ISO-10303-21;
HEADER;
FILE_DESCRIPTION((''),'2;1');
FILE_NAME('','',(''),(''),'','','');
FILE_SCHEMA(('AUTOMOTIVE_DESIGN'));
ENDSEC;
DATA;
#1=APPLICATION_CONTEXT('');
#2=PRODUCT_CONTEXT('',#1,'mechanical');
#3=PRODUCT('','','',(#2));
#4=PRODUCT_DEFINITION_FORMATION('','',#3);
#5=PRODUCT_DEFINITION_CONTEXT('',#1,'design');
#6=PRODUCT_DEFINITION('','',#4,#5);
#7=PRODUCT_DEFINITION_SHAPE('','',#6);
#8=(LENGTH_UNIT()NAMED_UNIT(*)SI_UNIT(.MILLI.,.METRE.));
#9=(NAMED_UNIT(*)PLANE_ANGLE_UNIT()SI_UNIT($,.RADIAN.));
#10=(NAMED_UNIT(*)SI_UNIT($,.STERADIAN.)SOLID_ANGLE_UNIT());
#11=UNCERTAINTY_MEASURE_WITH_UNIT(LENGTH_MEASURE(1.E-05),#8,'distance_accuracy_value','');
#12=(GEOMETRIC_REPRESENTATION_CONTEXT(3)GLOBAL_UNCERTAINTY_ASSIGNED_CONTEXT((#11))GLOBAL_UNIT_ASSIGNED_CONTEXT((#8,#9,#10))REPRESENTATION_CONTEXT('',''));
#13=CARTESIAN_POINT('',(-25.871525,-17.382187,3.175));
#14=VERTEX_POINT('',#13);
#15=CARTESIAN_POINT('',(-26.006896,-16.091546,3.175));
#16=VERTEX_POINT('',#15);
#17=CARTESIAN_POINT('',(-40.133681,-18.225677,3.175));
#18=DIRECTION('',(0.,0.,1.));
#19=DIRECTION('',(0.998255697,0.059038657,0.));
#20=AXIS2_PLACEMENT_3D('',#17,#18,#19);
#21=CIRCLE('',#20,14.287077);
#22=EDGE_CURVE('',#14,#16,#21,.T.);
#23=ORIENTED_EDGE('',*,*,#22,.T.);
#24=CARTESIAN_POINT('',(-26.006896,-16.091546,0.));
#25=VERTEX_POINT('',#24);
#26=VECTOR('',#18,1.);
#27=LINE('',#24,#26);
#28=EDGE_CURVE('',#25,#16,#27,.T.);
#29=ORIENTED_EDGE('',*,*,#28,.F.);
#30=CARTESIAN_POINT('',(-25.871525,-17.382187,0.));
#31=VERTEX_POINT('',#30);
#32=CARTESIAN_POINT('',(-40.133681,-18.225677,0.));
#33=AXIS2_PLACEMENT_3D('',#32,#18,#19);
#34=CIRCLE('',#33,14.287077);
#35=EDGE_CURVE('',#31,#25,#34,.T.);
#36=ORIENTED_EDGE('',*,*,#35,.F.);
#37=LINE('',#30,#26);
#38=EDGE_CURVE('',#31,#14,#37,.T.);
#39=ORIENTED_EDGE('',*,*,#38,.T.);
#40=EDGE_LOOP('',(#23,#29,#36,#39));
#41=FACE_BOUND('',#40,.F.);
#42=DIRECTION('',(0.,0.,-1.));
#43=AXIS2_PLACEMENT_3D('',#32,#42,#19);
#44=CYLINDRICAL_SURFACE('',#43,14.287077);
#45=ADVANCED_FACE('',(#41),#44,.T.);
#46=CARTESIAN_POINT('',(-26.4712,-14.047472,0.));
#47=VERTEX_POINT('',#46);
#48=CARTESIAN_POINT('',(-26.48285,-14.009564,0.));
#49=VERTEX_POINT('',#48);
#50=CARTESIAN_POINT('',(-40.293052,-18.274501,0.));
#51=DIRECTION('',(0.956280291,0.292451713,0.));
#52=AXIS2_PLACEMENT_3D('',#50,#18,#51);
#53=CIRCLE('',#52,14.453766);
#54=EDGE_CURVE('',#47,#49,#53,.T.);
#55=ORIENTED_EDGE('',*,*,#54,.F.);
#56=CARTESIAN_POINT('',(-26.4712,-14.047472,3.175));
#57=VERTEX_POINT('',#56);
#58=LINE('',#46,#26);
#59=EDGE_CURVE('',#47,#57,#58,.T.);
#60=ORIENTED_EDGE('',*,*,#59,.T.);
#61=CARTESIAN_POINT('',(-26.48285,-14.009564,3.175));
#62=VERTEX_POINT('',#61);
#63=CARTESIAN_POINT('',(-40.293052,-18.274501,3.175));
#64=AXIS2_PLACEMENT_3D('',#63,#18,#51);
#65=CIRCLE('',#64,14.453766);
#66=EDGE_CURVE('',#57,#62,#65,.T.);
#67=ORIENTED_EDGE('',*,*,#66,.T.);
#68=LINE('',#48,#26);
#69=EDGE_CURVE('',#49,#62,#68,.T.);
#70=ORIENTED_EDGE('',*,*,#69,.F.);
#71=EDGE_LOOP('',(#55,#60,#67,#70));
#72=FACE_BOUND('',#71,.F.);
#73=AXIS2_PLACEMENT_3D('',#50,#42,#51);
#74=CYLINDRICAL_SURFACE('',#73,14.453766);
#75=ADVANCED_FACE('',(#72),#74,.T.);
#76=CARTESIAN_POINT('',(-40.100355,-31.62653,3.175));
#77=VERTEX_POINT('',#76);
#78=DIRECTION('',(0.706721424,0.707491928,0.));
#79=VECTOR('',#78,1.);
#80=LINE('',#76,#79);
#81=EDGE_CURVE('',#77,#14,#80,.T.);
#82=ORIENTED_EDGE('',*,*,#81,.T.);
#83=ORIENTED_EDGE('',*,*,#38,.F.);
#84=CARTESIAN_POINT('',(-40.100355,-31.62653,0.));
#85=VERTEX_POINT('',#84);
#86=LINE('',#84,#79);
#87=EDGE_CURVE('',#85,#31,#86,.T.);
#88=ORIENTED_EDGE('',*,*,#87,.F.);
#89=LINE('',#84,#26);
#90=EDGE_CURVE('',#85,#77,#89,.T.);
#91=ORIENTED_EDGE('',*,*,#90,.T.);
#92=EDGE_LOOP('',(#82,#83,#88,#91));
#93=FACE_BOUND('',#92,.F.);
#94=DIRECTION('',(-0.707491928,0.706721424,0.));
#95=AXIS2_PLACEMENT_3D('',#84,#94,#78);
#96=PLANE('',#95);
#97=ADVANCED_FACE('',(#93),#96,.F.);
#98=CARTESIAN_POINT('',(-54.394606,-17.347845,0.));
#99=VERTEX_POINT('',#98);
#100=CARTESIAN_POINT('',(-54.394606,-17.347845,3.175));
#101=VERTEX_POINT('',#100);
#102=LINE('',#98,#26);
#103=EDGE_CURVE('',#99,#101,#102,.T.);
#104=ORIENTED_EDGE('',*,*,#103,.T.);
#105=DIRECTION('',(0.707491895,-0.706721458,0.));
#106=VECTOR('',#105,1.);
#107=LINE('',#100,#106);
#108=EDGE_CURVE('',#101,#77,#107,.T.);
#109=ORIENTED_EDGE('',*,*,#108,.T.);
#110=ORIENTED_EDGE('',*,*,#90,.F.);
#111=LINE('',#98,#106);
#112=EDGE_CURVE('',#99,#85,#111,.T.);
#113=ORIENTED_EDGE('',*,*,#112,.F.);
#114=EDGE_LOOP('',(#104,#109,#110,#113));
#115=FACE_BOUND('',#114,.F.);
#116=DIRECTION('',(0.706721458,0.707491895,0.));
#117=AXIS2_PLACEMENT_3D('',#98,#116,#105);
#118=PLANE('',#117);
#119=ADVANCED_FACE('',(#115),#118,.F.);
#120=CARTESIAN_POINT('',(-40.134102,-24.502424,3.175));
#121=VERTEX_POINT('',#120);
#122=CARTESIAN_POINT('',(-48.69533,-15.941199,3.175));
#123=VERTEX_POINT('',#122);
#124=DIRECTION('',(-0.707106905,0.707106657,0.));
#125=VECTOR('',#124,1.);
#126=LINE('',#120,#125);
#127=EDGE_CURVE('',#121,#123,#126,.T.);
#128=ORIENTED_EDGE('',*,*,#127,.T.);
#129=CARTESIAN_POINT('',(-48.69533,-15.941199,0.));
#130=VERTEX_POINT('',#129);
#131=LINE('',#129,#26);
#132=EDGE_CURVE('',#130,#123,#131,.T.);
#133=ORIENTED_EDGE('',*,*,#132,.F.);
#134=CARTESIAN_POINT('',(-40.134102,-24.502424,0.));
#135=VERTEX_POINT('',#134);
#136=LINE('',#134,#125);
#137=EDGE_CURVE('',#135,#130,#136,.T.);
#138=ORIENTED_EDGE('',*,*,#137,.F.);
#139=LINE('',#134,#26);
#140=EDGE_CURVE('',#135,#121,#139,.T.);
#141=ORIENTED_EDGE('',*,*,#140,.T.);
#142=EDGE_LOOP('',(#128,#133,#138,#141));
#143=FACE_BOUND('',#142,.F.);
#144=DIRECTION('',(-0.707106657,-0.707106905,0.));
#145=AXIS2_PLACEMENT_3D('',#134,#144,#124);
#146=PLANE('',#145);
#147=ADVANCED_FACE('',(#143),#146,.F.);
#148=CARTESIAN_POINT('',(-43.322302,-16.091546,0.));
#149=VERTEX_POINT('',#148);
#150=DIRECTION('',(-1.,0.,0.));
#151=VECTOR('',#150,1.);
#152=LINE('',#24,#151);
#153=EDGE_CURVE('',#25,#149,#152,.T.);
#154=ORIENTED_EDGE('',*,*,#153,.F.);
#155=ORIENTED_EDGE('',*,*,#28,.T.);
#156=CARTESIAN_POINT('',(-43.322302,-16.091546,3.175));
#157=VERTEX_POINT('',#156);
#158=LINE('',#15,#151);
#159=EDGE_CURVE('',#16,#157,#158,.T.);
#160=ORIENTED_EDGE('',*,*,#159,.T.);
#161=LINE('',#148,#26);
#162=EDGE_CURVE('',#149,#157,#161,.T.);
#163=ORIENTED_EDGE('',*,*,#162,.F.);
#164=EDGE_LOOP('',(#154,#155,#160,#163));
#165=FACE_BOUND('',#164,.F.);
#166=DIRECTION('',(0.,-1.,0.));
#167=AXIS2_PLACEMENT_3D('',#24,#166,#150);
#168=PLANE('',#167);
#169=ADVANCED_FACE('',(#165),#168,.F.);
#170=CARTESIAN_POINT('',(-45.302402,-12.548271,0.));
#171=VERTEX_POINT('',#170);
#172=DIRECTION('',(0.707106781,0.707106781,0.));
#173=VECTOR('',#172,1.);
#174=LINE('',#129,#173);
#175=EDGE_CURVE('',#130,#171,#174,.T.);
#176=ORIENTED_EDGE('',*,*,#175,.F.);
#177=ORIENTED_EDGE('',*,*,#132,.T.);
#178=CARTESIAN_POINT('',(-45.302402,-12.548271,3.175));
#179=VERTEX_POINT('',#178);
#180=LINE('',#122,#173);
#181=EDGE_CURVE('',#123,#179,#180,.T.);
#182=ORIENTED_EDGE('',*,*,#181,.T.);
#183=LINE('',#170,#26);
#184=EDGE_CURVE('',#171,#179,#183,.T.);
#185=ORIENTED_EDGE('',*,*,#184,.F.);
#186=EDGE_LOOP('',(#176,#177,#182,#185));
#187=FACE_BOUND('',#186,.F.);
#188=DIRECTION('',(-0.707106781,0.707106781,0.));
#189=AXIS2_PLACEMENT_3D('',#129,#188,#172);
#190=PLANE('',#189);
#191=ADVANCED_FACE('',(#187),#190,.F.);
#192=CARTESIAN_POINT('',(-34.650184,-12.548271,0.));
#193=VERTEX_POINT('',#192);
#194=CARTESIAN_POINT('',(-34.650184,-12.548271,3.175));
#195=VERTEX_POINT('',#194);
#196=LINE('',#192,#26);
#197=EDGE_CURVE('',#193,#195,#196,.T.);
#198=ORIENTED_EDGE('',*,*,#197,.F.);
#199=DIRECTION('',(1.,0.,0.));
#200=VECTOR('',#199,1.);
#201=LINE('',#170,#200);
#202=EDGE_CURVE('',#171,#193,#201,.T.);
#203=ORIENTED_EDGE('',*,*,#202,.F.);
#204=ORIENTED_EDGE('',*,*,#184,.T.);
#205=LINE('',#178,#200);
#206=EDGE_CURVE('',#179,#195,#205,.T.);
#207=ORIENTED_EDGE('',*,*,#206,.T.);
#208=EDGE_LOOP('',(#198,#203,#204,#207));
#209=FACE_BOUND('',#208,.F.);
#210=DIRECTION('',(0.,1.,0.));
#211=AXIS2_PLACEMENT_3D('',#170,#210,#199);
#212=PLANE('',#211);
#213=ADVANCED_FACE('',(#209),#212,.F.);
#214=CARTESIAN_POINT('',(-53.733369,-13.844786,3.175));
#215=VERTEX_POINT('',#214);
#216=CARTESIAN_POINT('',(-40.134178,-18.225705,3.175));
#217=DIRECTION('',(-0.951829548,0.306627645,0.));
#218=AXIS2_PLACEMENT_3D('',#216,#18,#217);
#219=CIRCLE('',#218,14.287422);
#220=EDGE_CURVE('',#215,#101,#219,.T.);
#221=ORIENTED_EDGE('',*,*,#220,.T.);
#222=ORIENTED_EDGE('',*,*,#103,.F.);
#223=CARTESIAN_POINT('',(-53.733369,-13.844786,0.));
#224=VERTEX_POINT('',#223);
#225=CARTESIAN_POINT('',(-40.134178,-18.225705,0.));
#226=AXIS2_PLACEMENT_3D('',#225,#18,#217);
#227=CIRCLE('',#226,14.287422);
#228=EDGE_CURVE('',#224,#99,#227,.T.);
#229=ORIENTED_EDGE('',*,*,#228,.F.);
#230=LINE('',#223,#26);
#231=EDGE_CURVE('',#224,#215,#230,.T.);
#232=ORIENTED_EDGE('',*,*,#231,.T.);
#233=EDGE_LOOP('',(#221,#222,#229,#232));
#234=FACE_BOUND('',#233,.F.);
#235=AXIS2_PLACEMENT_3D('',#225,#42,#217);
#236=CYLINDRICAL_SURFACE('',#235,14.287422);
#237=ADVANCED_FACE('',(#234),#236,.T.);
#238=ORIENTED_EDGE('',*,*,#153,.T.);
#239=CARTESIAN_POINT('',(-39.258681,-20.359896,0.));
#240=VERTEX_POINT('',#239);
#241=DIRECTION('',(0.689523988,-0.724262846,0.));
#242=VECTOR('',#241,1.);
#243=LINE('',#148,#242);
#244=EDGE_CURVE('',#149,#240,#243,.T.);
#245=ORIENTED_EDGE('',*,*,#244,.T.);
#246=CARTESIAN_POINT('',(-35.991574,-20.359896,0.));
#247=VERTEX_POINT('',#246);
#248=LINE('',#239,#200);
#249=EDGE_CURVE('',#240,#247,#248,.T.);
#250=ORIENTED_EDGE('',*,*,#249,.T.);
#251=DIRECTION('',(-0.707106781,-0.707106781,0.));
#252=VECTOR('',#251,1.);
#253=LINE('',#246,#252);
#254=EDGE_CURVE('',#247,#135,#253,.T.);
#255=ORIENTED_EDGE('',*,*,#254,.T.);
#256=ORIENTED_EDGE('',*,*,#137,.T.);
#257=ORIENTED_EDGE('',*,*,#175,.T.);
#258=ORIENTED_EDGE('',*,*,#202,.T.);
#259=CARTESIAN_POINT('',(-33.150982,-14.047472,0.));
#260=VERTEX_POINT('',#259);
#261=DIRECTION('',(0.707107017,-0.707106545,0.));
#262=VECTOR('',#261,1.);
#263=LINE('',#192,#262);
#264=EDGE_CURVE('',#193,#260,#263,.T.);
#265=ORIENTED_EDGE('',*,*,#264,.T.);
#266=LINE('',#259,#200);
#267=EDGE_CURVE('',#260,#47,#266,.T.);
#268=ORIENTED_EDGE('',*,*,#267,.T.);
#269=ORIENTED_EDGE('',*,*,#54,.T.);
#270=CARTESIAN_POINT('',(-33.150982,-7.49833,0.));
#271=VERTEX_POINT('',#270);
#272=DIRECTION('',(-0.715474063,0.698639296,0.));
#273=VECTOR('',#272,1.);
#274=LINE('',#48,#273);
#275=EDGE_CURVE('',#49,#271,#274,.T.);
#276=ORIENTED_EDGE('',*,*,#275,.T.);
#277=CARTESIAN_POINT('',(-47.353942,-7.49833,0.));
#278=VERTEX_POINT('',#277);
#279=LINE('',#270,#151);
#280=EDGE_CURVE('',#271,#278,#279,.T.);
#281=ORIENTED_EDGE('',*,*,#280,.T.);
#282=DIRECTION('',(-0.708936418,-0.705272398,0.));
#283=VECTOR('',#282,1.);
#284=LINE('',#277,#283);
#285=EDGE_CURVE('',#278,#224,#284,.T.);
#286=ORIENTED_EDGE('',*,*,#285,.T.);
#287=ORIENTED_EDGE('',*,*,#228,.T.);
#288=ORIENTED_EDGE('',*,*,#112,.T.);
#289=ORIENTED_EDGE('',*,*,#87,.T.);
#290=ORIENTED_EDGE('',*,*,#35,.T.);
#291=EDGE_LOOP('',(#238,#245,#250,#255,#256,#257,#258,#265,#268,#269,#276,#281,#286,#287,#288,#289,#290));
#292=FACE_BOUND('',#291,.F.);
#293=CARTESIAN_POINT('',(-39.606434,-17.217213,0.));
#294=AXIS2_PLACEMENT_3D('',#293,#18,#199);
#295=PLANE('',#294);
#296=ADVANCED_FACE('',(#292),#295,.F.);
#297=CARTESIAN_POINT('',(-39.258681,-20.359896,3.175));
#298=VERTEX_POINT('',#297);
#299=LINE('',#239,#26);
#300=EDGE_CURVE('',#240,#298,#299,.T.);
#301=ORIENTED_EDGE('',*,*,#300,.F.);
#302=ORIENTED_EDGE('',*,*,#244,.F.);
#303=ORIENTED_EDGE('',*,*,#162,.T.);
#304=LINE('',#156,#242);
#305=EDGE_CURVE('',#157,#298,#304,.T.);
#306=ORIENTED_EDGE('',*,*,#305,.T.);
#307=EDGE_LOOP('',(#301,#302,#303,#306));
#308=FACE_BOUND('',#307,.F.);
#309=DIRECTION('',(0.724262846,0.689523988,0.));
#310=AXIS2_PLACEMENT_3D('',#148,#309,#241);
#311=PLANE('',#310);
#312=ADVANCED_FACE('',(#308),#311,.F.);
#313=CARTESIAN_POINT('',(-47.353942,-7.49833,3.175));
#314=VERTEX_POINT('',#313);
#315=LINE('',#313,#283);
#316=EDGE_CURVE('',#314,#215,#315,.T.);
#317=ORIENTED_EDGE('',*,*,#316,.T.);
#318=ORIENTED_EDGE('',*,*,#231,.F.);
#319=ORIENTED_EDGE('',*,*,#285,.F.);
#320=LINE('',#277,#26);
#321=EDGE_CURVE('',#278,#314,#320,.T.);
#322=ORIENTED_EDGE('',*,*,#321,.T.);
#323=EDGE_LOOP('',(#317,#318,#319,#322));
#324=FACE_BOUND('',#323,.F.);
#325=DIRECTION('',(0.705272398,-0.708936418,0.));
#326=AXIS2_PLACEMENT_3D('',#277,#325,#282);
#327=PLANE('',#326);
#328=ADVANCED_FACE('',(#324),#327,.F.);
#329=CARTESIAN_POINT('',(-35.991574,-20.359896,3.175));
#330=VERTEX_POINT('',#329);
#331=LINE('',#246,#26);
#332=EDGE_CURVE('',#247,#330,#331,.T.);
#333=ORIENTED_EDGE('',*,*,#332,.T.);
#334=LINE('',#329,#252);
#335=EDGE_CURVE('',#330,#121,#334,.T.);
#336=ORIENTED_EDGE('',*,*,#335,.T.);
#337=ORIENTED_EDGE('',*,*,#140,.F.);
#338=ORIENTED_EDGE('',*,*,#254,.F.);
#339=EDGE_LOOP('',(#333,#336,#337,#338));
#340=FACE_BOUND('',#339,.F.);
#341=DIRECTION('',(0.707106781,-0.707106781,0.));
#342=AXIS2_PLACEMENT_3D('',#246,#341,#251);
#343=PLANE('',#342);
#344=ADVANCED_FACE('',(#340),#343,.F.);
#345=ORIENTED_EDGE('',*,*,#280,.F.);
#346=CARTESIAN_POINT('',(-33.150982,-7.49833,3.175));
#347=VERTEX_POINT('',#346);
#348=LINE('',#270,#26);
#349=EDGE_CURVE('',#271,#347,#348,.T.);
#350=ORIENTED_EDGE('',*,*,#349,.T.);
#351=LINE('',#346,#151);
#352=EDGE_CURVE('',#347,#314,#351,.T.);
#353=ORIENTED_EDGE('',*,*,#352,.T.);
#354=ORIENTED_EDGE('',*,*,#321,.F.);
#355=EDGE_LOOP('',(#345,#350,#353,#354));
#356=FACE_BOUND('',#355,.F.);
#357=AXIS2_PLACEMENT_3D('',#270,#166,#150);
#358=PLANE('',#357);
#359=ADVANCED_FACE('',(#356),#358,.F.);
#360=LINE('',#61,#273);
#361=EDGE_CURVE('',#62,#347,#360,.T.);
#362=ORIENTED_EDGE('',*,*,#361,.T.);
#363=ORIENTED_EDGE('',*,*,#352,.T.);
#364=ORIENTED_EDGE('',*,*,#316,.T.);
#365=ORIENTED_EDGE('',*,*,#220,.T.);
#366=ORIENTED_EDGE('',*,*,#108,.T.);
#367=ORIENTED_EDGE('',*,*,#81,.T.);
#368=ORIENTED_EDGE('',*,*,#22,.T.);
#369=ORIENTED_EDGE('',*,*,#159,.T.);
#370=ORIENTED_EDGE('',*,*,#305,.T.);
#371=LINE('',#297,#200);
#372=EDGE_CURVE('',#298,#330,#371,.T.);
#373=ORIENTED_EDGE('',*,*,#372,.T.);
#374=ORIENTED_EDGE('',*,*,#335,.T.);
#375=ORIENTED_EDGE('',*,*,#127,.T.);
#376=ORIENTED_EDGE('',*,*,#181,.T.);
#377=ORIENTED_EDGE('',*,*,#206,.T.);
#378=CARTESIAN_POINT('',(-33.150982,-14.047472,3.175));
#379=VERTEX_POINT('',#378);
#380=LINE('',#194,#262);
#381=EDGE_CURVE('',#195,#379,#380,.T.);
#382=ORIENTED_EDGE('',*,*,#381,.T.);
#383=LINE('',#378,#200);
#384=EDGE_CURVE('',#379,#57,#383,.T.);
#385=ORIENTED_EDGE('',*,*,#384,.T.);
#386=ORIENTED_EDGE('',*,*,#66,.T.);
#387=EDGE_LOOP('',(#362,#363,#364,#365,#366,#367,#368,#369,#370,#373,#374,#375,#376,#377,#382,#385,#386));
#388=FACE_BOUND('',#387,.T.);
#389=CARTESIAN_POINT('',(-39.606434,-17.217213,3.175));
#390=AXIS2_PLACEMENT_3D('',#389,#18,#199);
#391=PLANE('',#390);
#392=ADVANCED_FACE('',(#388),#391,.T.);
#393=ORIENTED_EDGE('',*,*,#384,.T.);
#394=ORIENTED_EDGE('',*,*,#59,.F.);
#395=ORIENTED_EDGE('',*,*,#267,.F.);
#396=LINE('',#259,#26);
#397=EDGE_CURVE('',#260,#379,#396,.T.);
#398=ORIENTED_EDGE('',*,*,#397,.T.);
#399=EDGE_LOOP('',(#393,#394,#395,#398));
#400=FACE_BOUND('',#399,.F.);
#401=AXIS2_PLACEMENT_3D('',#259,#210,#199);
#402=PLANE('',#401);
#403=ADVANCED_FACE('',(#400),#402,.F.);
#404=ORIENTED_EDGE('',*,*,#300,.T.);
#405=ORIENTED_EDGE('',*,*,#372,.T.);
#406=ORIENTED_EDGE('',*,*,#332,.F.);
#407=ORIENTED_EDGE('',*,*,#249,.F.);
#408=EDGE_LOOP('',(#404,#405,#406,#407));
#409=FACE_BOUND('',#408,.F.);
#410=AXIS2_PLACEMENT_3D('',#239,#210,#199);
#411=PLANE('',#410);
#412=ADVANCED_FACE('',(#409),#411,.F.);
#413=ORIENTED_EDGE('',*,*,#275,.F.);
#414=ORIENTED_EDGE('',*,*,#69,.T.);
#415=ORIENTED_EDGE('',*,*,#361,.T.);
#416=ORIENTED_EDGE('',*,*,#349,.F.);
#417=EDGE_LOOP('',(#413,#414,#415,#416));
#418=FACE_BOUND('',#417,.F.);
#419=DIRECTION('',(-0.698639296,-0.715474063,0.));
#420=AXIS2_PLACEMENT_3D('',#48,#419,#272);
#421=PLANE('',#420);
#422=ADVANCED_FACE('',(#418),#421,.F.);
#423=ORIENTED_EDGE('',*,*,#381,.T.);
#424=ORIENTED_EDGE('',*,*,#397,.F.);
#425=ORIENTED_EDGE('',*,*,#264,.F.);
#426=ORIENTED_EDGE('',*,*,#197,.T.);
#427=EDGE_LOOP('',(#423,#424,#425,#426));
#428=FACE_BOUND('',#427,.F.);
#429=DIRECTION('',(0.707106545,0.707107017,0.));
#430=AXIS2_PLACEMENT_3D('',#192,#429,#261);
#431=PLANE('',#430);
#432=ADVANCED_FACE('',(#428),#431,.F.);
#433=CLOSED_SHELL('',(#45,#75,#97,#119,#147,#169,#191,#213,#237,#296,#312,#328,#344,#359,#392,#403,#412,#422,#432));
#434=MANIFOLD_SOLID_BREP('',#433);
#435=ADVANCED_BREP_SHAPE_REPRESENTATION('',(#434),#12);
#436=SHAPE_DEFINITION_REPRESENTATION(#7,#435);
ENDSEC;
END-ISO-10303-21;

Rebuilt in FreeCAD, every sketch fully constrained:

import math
import FreeCAD as App
import Part
import Sketcher

V = App.Vector
Q = App.Units.Quantity

doc = App.newDocument("Part")
body = doc.addObject("PartDesign::Body", "Body")

# Sketch on XY plane
sketch1 = body.newObject("Sketcher::SketchObject", "Sketch")
sketch1.AttachmentSupport = (doc.getObject("XY_Plane"), [""])
sketch1.MapMode = "FlatFace"
sketch1.addGeometry([
    Part.LineSegment(V(-33.151, -7.498, 0), V(-47.354, -7.498, 0)),  # 0
    Part.LineSegment(V(-47.354, -7.498, 0), V(-53.733, -13.845, 0)),  # 1
    Part.ArcOfCircle(Part.Circle(V(-40.134, -18.226, 0), V(0, 0, 1), 14.287), math.radians(162.14), math.radians(176.48)),  # 2
    Part.LineSegment(V(-54.395, -17.348, 0), V(-40.1, -31.627, 0)),  # 3
    Part.LineSegment(V(-40.1, -31.627, 0), V(-25.872, -17.382, 0)),  # 4
    Part.ArcOfCircle(Part.Circle(V(-40.134, -18.226, 0), V(0, 0, 1), 14.287), math.radians(3.38), math.radians(8.59)),  # 5
    Part.LineSegment(V(-26.007, -16.092, 0), V(-43.322, -16.092, 0)),  # 6
    Part.LineSegment(V(-43.322, -16.092, 0), V(-39.259, -20.36, 0)),  # 7
    Part.LineSegment(V(-39.259, -20.36, 0), V(-35.992, -20.36, 0)),  # 8
    Part.LineSegment(V(-35.992, -20.36, 0), V(-40.134, -24.502, 0)),  # 9
    Part.LineSegment(V(-40.134, -24.502, 0), V(-48.695, -15.941, 0)),  # 10
    Part.LineSegment(V(-48.695, -15.941, 0), V(-45.302, -12.548, 0)),  # 11
    Part.LineSegment(V(-45.302, -12.548, 0), V(-34.65, -12.548, 0)),  # 12
    Part.LineSegment(V(-34.65, -12.548, 0), V(-33.151, -14.047, 0)),  # 13
    Part.LineSegment(V(-33.151, -14.047, 0), V(-26.471, -14.047, 0)),  # 14
    Part.ArcOfCircle(Part.Circle(V(-40.293, -18.275, 0), V(0, 0, 1), 14.454), math.radians(17), math.radians(17.16)),  # 15
    Part.LineSegment(V(-26.483, -14.01, 0), V(-33.151, -7.498, 0)),  # 16
], False)
sketch1.addConstraint([
    Sketcher.Constraint("Coincident", 0, 2, 1, 1),
    Sketcher.Constraint("Coincident", 1, 2, 2, 1),
    Sketcher.Constraint("Coincident", 2, 2, 3, 1),
    Sketcher.Constraint("Coincident", 3, 2, 4, 1),
    Sketcher.Constraint("Coincident", 4, 2, 5, 1),
    Sketcher.Constraint("Coincident", 5, 2, 6, 1),
    Sketcher.Constraint("Coincident", 6, 2, 7, 1),
    Sketcher.Constraint("Coincident", 7, 2, 8, 1),
    Sketcher.Constraint("Coincident", 8, 2, 9, 1),
    Sketcher.Constraint("Coincident", 9, 2, 10, 1),
    Sketcher.Constraint("Coincident", 10, 2, 11, 1),
    Sketcher.Constraint("Coincident", 11, 2, 12, 1),
    Sketcher.Constraint("Coincident", 12, 2, 13, 1),
    Sketcher.Constraint("Coincident", 13, 2, 14, 1),
    Sketcher.Constraint("Coincident", 14, 2, 15, 1),
    Sketcher.Constraint("Coincident", 15, 2, 16, 1),
    Sketcher.Constraint("Coincident", 16, 2, 0, 1),
    Sketcher.Constraint("Horizontal", 0),
    Sketcher.Constraint("Horizontal", 6),
    Sketcher.Constraint("Horizontal", 8),
    Sketcher.Constraint("Horizontal", 12),
    Sketcher.Constraint("Horizontal", 14),
    Sketcher.Constraint("Perpendicular", 3, 4),
    Sketcher.Constraint("Perpendicular", 9, 10),
    Sketcher.Constraint("Perpendicular", 10, 11),
    Sketcher.Constraint("Perpendicular", 11, 13),
    Sketcher.Constraint("Vertical", 13, 2, 16, 2),
    Sketcher.Constraint("Angle", 9, Q("-135 deg")),
    Sketcher.Constraint("Radius", 2, Q("14.287422 mm")),
    Sketcher.Constraint("Radius", 5, Q("14.287077 mm")),
    Sketcher.Constraint("Radius", 15, Q("14.453766 mm")),
    Sketcher.Constraint("DistanceX", 0, 2, 0, 1, Q("14.20296 mm")),
    Sketcher.Constraint("DistanceX", 14, 1, 14, 2, Q("6.679782 mm")),
    Sketcher.Constraint("DistanceY", 15, 3, -1, 1, Q("18.274501 mm")),
    Sketcher.Constraint("DistanceY", 10, 2, -1, 1, Q("15.941199 mm")),
    Sketcher.Constraint("DistanceX", 14, 2, -1, 1, Q("26.4712 mm")),
    Sketcher.Constraint("DistanceX", 5, 3, 7, 2, Q("0.875 mm")),
    Sketcher.Constraint("DistanceX", 11, 2, 6, 2, Q("1.9801 mm")),
    Sketcher.Constraint("DistanceY", 13, 2, 12, 2, Q("1.499201 mm")),
    Sketcher.Constraint("DistanceX", 5, 3, 13, 2, Q("6.982699 mm")),
    Sketcher.Constraint("Distance", 1, Q("8.998588 mm")),
    Sketcher.Constraint("Distance", 3, Q("20.20412 mm")),
    Sketcher.Constraint("Distance", 7, Q("5.893371 mm")),
    Sketcher.Constraint("Distance", 9, Q("5.858419 mm")),
    Sketcher.Constraint("Distance", 16, Q("9.319879 mm")),
    Sketcher.Constraint("DistanceX", 6, 2, 6, 1, Q("17.315406 mm")),
    Sketcher.Constraint("DistanceX", 8, 1, 8, 2, Q("3.267107 mm")),
    Sketcher.Constraint("DistanceX", 12, 1, 12, 2, Q("10.652218 mm")),
    Sketcher.Constraint("DistanceX", 2, 3, -1, 1, Q("40.134178 mm")),
    Sketcher.Constraint("DistanceX", 15, 3, -1, 1, Q("40.293052 mm")),
    Sketcher.Constraint("DistanceY", 0, 2, -1, 1, Q("7.49833 mm")),
    Sketcher.Constraint("DistanceX", 1, 2, -1, 1, Q("53.733369 mm")),
    Sketcher.Constraint("DistanceY", 3, 2, -1, 1, Q("31.62653 mm")),
    Sketcher.Constraint("DistanceY", 2, 2, 1, 2, Q("3.503059 mm")),
])
pad1 = body.newObject("PartDesign::Pad", "Pad")
pad1.Profile = sketch1
pad1.Length = Q("0.125 in")

doc.recompute()
